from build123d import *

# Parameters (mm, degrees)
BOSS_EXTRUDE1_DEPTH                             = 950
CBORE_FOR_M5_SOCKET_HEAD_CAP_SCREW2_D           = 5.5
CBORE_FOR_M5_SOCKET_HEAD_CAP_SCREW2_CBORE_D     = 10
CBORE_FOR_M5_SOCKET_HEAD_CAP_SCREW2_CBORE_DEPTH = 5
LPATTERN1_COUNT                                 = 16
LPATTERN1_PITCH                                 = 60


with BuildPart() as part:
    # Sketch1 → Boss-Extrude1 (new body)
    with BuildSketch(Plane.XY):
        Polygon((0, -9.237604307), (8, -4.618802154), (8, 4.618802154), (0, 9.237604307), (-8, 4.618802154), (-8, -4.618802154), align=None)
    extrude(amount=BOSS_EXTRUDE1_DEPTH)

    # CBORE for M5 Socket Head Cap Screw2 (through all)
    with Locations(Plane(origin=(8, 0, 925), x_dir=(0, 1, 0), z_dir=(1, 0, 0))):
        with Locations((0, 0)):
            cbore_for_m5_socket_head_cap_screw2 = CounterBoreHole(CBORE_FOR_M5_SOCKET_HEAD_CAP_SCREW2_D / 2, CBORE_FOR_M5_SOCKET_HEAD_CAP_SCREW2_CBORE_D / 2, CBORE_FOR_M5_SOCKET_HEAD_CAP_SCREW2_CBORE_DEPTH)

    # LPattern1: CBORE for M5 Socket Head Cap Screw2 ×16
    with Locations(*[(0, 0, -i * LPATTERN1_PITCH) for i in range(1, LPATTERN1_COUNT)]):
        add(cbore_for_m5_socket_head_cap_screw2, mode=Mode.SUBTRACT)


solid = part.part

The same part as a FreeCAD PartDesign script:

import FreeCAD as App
import Part
import Sketcher
Q = App.Units.Quantity


def add_polygon(sketch, points):
    """Adds a closed chain of lines whose ends are joined by coincident constraints."""
    first, n = sketch.GeometryCount, len(points)
    for a, b in zip(points, points[1:] + points[:1]):
        sketch.addGeometry(Part.LineSegment(App.Vector(*a, 0), App.Vector(*b, 0)), False)
    for i in range(n):
        sketch.addConstraint(Sketcher.Constraint("Coincident", first + i, 2, first + (i + 1) % n, 1))

doc = App.newDocument("Part")
body = doc.addObject("PartDesign::Body", "Body")

sketch1 = doc.addObject("Sketcher::SketchObject", "Sketch")
body.addObject(sketch1)
sketch1.AttachmentSupport = (doc.XY_Plane, [""])
sketch1.MapMode = "FlatFace"
add_polygon(sketch1, [(0, -9), (8, -5), (8, 5), (0, 9), (-8, 5), (-8, -5)])
sketch1.addConstraint(Sketcher.Constraint("Vertical", 1))
sketch1.addConstraint(Sketcher.Constraint("Vertical", 4))
sketch1.addConstraint(Sketcher.Constraint("Symmetric", 0, 2, 3, 2, -1, 1))
sketch1.addConstraint(Sketcher.Constraint("Symmetric", 2, 2, 5, 2, -1, 1))
sketch1.addConstraint(Sketcher.Constraint("PointOnObject", 2, 2, -2))
sketch1.addConstraint(Sketcher.Constraint("Parallel", 2, 5))
sketch1.addConstraint(Sketcher.Constraint("Horizontal", 1, 2, 3, 2))
sketch1.addConstraint(Sketcher.Constraint("Angle", 0, Q("30 deg")))
sketch1.addConstraint(Sketcher.Constraint("DistanceX", -1, 1, 0, 2, 8.0))
sketch1.addConstraint(Sketcher.Constraint("DistanceY", 1, 1, 1, 2, 9.237604))
pad1 = doc.addObject("PartDesign::Pad", "Pad")
body.addObject(pad1)
pad1.Profile = sketch1
pad1.Length = 950

sketch2 = doc.addObject("Sketcher::SketchObject", "Sketch001")
body.addObject(sketch2)
sketch2.AttachmentSupport = (doc.YZ_Plane, [""])
sketch2.MapMode = "FlatFace"
sketch2.AttachmentOffset = App.Placement(App.Vector(0, 0, 8), App.Rotation())
sketch2.addGeometry(Part.Circle(App.Vector(0, 925, 0), App.Vector(0, 0, 1), 2.8), False)
sketch2.addConstraint(Sketcher.Constraint("PointOnObject", 0, 3, -2))
sketch2.addConstraint(Sketcher.Constraint("Diameter", 0, 5.5))
sketch2.addConstraint(Sketcher.Constraint("DistanceY", -1, 1, 0, 3, 925.0))
doc.recompute()
hole = doc.addObject("PartDesign::Hole", "Hole")
body.addObject(hole)
hole.Profile = sketch2
hole.ThreadType = "None"
hole.Diameter = 5.5
hole.DepthType = "ThroughAll"
hole.HoleCutType = "Counterbore"
hole.HoleCutDiameter = 10
hole.HoleCutDepth = 5
doc.recompute()

linearpattern = doc.addObject("PartDesign::LinearPattern", "LinearPattern")
body.addObject(linearpattern)
linearpattern.Originals = [hole]
linearpattern.Direction = (doc.Z_Axis, [""])
linearpattern.Mode = "offset"
linearpattern.Offset = 60
linearpattern.Occurrences = 16
linearpattern.Reversed = True
body.Tip = linearpattern

doc.recompute()
